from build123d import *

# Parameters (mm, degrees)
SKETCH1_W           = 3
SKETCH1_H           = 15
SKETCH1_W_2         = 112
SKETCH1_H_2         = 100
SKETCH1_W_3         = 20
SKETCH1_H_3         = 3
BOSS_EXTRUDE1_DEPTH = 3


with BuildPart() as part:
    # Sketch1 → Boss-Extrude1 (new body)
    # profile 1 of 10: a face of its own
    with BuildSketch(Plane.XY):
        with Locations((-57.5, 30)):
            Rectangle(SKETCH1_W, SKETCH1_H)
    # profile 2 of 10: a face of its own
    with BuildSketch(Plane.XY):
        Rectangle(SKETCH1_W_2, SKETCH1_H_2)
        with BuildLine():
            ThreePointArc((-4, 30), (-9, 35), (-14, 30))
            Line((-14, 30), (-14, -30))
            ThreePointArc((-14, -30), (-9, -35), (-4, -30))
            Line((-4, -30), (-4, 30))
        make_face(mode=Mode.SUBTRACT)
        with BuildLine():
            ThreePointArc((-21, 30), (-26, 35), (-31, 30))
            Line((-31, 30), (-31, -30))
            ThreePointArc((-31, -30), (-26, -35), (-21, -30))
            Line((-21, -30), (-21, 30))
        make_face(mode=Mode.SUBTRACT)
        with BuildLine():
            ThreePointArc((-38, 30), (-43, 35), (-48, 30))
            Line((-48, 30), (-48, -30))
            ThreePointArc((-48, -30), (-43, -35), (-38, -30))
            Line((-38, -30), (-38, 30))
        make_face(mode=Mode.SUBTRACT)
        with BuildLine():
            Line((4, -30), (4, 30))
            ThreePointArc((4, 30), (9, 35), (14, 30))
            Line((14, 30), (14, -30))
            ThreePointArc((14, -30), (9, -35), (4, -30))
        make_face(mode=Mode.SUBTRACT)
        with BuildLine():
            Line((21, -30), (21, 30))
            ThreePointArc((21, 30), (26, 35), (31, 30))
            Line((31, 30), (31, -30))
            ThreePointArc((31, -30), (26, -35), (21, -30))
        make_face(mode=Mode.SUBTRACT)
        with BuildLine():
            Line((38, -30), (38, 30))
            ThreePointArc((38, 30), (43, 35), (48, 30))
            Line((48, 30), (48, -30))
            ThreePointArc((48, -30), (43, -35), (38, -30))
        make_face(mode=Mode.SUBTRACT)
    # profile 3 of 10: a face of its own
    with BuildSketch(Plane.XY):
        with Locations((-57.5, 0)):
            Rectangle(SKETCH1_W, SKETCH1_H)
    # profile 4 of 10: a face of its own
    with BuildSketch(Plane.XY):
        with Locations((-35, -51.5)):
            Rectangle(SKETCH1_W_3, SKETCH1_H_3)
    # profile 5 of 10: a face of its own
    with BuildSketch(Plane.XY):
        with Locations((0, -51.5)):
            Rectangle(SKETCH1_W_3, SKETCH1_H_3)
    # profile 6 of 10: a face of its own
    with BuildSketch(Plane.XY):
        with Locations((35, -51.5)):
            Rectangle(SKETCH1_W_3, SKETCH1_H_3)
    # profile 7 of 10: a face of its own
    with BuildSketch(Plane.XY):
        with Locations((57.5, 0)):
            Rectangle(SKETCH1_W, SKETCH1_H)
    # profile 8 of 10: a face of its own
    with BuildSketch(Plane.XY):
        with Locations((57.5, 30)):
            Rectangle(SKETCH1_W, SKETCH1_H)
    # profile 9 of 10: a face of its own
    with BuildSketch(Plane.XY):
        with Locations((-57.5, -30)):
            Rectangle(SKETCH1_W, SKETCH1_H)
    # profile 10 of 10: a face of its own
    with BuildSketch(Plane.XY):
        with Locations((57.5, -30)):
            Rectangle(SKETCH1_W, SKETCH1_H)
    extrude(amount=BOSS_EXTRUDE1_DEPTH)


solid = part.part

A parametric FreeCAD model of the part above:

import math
import FreeCAD as App
import Part
import Sketcher
from FreeCAD import Vector
Q = App.Units.Quantity


def add_polygon(sketch, points):
    """Adds a closed chain of lines whose ends are joined by coincident constraints."""
    first, n = sketch.GeometryCount, len(points)
    for a, b in zip(points, points[1:] + points[:1]):
        sketch.addGeometry(Part.LineSegment(App.Vector(*a, 0), App.Vector(*b, 0)), False)
    for i in range(n):
        sketch.addConstraint(Sketcher.Constraint("Coincident", first + i, 2, first + (i + 1) % n, 1))

doc = App.newDocument("Part")
params = doc.addObject("Spreadsheet::Sheet", "Params")
for row, (alias, value) in enumerate([
    ("sketch1_radius", "5 mm"),
    ("sketch1_width", "3 mm"),
    ("sketch1_width2", "11 mm"),
    ("sketch1_width3", "20 mm"),
    ("sketch1_width4", "15 mm"),
    ("pad1_length", "3 mm"),
], start=1):
    params.set(f"A{row}", alias)
    params.set(f"B{row}", "=" + value)
    params.setAlias(f"B{row}", alias)

body = doc.addObject("PartDesign::Body", "Body")

sketch1 = doc.addObject("Sketcher::SketchObject", "Sketch")
body.addObject(sketch1)
sketch1.AttachmentSupport = (doc.XY_Plane, [""])
sketch1.MapMode = "FlatFace"
add_polygon(sketch1, [(-59, 37.5), (-59, 22.5), (-56, 22.5), (-56, 7.5), (-59, 7.5), (-59, -7.5), (-56, -7.5), (-56, -22.5), (-59, -22.5), (-59, -37.5), (-56, -37.5), (-56, -50), (-45, -50), (-45, -53), (-25, -53), (-25, -50), (-10, -50), (-10, -53), (10, -53), (10, -50), (25, -50), (25, -53), (45, -53), (45, -50), (56, -50), (56, -37.5), (59, -37.5), (59, -22.5), (56, -22.5), (56, -7.5), (59, -7.5), (59, 7.5), (56, 7.5), (56, 22.5), (59, 22.5), (59, 37.5), (56, 37.5), (56, 50), (-56, 50), (-56, 37.5)])
sketch1.addGeometry(Part.LineSegment(Vector(38, -30, 0), Vector(38, 30, 0)), False)
sketch1.addGeometry(Part.ArcOfCircle(Part.Circle(Vector(43, 30, 0), Vector(0, 0, 1), 5), math.radians(0), math.radians(180)), False)
sketch1.addGeometry(Part.LineSegment(Vector(48, 30, 0), Vector(48, -30, 0)), False)
sketch1.addGeometry(Part.ArcOfCircle(Part.Circle(Vector(43, -30, 0), Vector(0, 0, 1), 5), math.radians(180), math.radians(360)), False)
sketch1.addGeometry(Part.ArcOfCircle(Part.Circle(Vector(-43, 30, 0), Vector(0, 0, 1), 5), math.radians(0), math.radians(180)), False)
sketch1.addGeometry(Part.LineSegment(Vector(-38, 30, 0), Vector(-38, -30, 0)), False)
sketch1.addGeometry(Part.ArcOfCircle(Part.Circle(Vector(-43, -30, 0), Vector(0, 0, 1), 5), math.radians(180), math.radians(360)), False)
sketch1.addGeometry(Part.LineSegment(Vector(-48, -30, 0), Vector(-48, 30, 0)), False)
sketch1.addGeometry(Part.ArcOfCircle(Part.Circle(Vector(-26, 30, 0), Vector(0, 0, 1), 5), math.radians(0), math.radians(180)), False)
sketch1.addGeometry(Part.LineSegment(Vector(-21, 30, 0), Vector(-21, -30, 0)), False)
sketch1.addGeometry(Part.ArcOfCircle(Part.Circle(Vector(-26, -30, 0), Vector(0, 0, 1), 5), math.radians(180), math.radians(360)), False)
sketch1.addGeometry(Part.LineSegment(Vector(-31, -30, 0), Vector(-31, 30, 0)), False)
sketch1.addGeometry(Part.ArcOfCircle(Part.Circle(Vector(-9, 30, 0), Vector(0, 0, 1), 5), math.radians(0), math.radians(180)), False)
sketch1.addGeometry(Part.LineSegment(Vector(-4, 30, 0), Vector(-4, -30, 0)), False)
sketch1.addGeometry(Part.ArcOfCircle(Part.Circle(Vector(-9, -30, 0), Vector(0, 0, 1), 5), math.radians(180), math.radians(360)), False)
sketch1.addGeometry(Part.LineSegment(Vector(-14, -30, 0), Vector(-14, 30, 0)), False)
sketch1.addGeometry(Part.ArcOfCircle(Part.Circle(Vector(9, -30, 0), Vector(0, 0, 1), 5), math.radians(180), math.radians(360)), False)
sketch1.addGeometry(Part.LineSegment(Vector(4, -30, 0), Vector(4, 30, 0)), False)
sketch1.addGeometry(Part.ArcOfCircle(Part.Circle(Vector(9, 30, 0), Vector(0, 0, 1), 5), math.radians(0), math.radians(180)), False)
sketch1.addGeometry(Part.LineSegment(Vector(14, 30, 0), Vector(14, -30, 0)), False)
sketch1.addGeometry(Part.ArcOfCircle(Part.Circle(Vector(26, -30, 0), Vector(0, 0, 1), 5), math.radians(180), math.radians(360)), False)
sketch1.addGeometry(Part.LineSegment(Vector(21, -30, 0), Vector(21, 30, 0)), False)
sketch1.addGeometry(Part.ArcOfCircle(Part.Circle(Vector(26, 30, 0), Vector(0, 0, 1), 5), math.radians(0), math.radians(180)), False)
sketch1.addGeometry(Part.LineSegment(Vector(31, 30, 0), Vector(31, -30, 0)), False)
sketch1.addConstraint([
    Sketcher.Constraint("Tangent", 40, 2, 41, 2),
    Sketcher.Constraint("Tangent", 41, 1, 42, 1),
    Sketcher.Constraint("Tangent", 42, 2, 43, 2),
    Sketcher.Constraint("Tangent", 43, 1, 40, 1),
    Sketcher.Constraint("Tangent", 44, 1, 45, 1),
    Sketcher.Constraint("Tangent", 45, 2, 46, 2),
    Sketcher.Constraint("Tangent", 46, 1, 47, 1),
    Sketcher.Constraint("Tangent", 47, 2, 44, 2),
    Sketcher.Constraint("Tangent", 48, 1, 49, 1),
    Sketcher.Constraint("Tangent", 49, 2, 50, 2),
    Sketcher.Constraint("Tangent", 50, 1, 51, 1),
    Sketcher.Constraint("Tangent", 51, 2, 48, 2),
    Sketcher.Constraint("Tangent", 52, 1, 53, 1),
    Sketcher.Constraint("Tangent", 53, 2, 54, 2),
    Sketcher.Constraint("Tangent", 54, 1, 55, 1),
    Sketcher.Constraint("Tangent", 55, 2, 52, 2),
    Sketcher.Constraint("Tangent", 56, 1, 57, 1),
    Sketcher.Constraint("Tangent", 57, 2, 58, 2),
    Sketcher.Constraint("Tangent", 58, 1, 59, 1),
    Sketcher.Constraint("Tangent", 59, 2, 56, 2),
    Sketcher.Constraint("Tangent", 60, 1, 61, 1),
    Sketcher.Constraint("Tangent", 61, 2, 62, 2),
    Sketcher.Constraint("Tangent", 62, 1, 63, 1),
    Sketcher.Constraint("Tangent", 63, 2, 60, 2),
    Sketcher.Constraint("Vertical", 0),
    Sketcher.Constraint("Horizontal", 1),
    Sketcher.Constraint("Vertical", 2),
    Sketcher.Constraint("Horizontal", 3),
    Sketcher.Constraint("Vertical", 4),
    Sketcher.Constraint("Horizontal", 5),
    Sketcher.Constraint("Vertical", 6),
    Sketcher.Constraint("Horizontal", 7),
    Sketcher.Constraint("Vertical", 8),
    Sketcher.Constraint("Horizontal", 9),
    Sketcher.Constraint("Vertical", 10),
    Sketcher.Constraint("Horizontal", 11),
    Sketcher.Constraint("Vertical", 12),
    Sketcher.Constraint("Horizontal", 13),
    Sketcher.Constraint("Vertical", 14),
    Sketcher.Constraint("Horizontal", 15),
    Sketcher.Constraint("Vertical", 16),
    Sketcher.Constraint("Horizontal", 17),
    Sketcher.Constraint("Vertical", 18),
    Sketcher.Constraint("Horizontal", 19),
    Sketcher.Constraint("Vertical", 20),
    Sketcher.Constraint("Horizontal", 21),
    Sketcher.Constraint("Vertical", 22),
    Sketcher.Constraint("Horizontal", 23),
    Sketcher.Constraint("Vertical", 24),
    Sketcher.Constraint("Horizontal", 25),
    Sketcher.Constraint("Vertical", 26),
    Sketcher.Constraint("Horizontal", 27),
    Sketcher.Constraint("Vertical", 28),
    Sketcher.Constraint("Horizontal", 29),
    Sketcher.Constraint("Vertical", 30),
    Sketcher.Constraint("Horizontal", 31),
    Sketcher.Constraint("Vertical", 32),
    Sketcher.Constraint("Horizontal", 33),
    Sketcher.Constraint("Vertical", 34),
    Sketcher.Constraint("Horizontal", 35),
    Sketcher.Constraint("Vertical", 36),
    Sketcher.Constraint("Horizontal", 37),
    Sketcher.Constraint("Vertical", 38),
    Sketcher.Constraint("Horizontal", 39),
    Sketcher.Constraint("Vertical", 40),
    Sketcher.Constraint("Vertical", 42),
    Sketcher.Constraint("Vertical", 45),
    Sketcher.Constraint("Vertical", 47),
    Sketcher.Constraint("Vertical", 49),
    Sketcher.Constraint("Vertical", 51),
    Sketcher.Constraint("Vertical", 53),
    Sketcher.Constraint("Vertical", 55),
    Sketcher.Constraint("Vertical", 57),
    Sketcher.Constraint("Vertical", 59),
    Sketcher.Constraint("Vertical", 61),
    Sketcher.Constraint("Vertical", 63),
    Sketcher.Constraint("Equal", 43, 44),
    Sketcher.Constraint("Equal", 46, 48),
    Sketcher.Constraint("Equal", 50, 52),
    Sketcher.Constraint("Equal", 54, 56),
    Sketcher.Constraint("Equal", 58, 60),
    Sketcher.Constraint("Symmetric", 43, 3, 44, 3, -1, 1),
    Sketcher.Constraint("Symmetric", 52, 3, 56, 3, -1, 1),
    Sketcher.Constraint("Symmetric", 48, 3, 60, 3, -1, 1),
    Sketcher.Constraint("Symmetric", 0, 2, 26, 2, -1, 1),
    Sketcher.Constraint("Symmetric", 2, 2, 28, 2, -1, 1),
    Sketcher.Constraint("Symmetric", 4, 2, 30, 2, -1, 1),
    Sketcher.Constraint("Symmetric", 6, 2, 32, 2, -1, 1),
    Sketcher.Constraint("Symmetric", 8, 2, 34, 2, -1, 1),
    Sketcher.Constraint("Symmetric", 10, 2, 36, 2, -1, 1),
    Sketcher.Constraint("Symmetric", 23, 2, 37, 2, -1, 1),
    Sketcher.Constraint("Symmetric", 15, 2, 18, 2, -2),
    Sketcher.Constraint("Symmetric", 13, 2, 20, 2, -2),
    Sketcher.Constraint("Symmetric", 9, 2, 24, 2, -2),
    Sketcher.Constraint("Symmetric", 7, 2, 26, 2, -2),
    Sketcher.Constraint("Symmetric", 5, 2, 28, 2, -2),
    Sketcher.Constraint("Horizontal", 41, 3, 44, 3),
    Sketcher.Constraint("Horizontal", 43, 3, 46, 3),
    Sketcher.Constraint("Horizontal", 44, 3, 48, 3),
    Sketcher.Constraint("Horizontal", 46, 3, 50, 3),
    Sketcher.Constraint("Horizontal", 48, 3, 52, 3),
    Sketcher.Constraint("Horizontal", 50, 3, 54, 3),
    Sketcher.Constraint("Horizontal", 52, 3, 58, 3),
    Sketcher.Constraint("Horizontal", 58, 3, 62, 3),
    Sketcher.Constraint("Horizontal", 11, 2, 14, 2),
    Sketcher.Constraint("Horizontal", 13, 2, 16, 2),
    Sketcher.Constraint("Horizontal", 35, 2, 38, 2),
    Sketcher.Constraint("Vertical", 0, 2, 3, 2),
    Sketcher.Constraint("Vertical", 6, 2, 9, 2),
    Sketcher.Constraint("Equal", 13, 17),
    Sketcher.Constraint("Equal", 17, 21),
    Sketcher.Constraint("Equal", 19, 0),
    Sketcher.Constraint("Equal", 0, 2),
    Sketcher.Constraint("Equal", 2, 4),
    Sketcher.Constraint("Equal", 39, 12),
    Sketcher.Constraint("Radius", 41, Q("5 mm")),
    Sketcher.Constraint("DistanceX", 1, 1, 1, 2, Q("3 mm")),
    Sketcher.Constraint("DistanceX", 11, 1, 11, 2, Q("11 mm")),
    Sketcher.Constraint("DistanceX", 13, 1, 13, 2, Q("20 mm")),
    Sketcher.Constraint("DistanceX", 15, 1, 15, 2, Q("15 mm")),
    Sketcher.Constraint("DistanceY", 40, 1, 40, 2, Q("60 mm")),
    Sketcher.Constraint("DistanceY", 10, 2, 10, 1, Q("12.5 mm")),
    Sketcher.Constraint("DistanceX", -1, 1, 41, 3, Q("43 mm")),
    Sketcher.Constraint("DistanceX", 48, 3, -1, 1, Q("26 mm")),
    Sketcher.Constraint("DistanceX", 52, 3, -1, 1, Q("9 mm")),
])
sketch1.setExpression("Constraints[155]", "Params.sketch1_radius")
sketch1.setExpression("Constraints[156]", "Params.sketch1_width")
sketch1.setExpression("Constraints[157]", "Params.sketch1_width2")
sketch1.setExpression("Constraints[158]", "Params.sketch1_width3")
sketch1.setExpression("Constraints[159]", "Params.sketch1_width4")
pad1 = doc.addObject("PartDesign::Pad", "Pad")
body.addObject(pad1)
pad1.Profile = sketch1
pad1.setExpression("Length", "Params.pad1_length")

doc.recompute()
